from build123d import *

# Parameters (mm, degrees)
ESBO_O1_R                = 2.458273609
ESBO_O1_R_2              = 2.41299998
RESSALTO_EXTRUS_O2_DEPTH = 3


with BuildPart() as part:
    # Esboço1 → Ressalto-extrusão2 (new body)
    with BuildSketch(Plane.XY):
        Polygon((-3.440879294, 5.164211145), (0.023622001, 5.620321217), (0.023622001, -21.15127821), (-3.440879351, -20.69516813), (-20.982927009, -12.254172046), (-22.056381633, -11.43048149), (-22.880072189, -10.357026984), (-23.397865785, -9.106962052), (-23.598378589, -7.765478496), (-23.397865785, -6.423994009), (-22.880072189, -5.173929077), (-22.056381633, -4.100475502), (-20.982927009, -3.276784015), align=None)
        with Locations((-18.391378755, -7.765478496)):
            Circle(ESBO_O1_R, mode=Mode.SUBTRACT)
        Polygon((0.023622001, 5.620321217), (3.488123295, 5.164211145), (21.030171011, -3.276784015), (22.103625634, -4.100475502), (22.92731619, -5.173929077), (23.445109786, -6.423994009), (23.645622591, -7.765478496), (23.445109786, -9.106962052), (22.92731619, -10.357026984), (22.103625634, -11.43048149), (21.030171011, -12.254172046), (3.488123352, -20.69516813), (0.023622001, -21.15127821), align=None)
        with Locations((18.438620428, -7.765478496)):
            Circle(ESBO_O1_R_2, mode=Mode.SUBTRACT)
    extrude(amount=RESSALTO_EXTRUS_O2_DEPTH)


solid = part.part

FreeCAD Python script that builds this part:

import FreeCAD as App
import Part
import Sketcher

V = App.Vector
Q = App.Units.Quantity


def add_polygon(sketch, points):
    """Adds a closed chain of lines whose ends are joined by coincident constraints."""
    first, n = sketch.GeometryCount, len(points)
    for a, b in zip(points, points[1:] + points[:1]):
        sketch.addGeometry(Part.LineSegment(App.Vector(*a, 0), App.Vector(*b, 0)), False)
    for i in range(n):
        sketch.addConstraint(Sketcher.Constraint("Coincident", first + i, 2, first + (i + 1) % n, 1))

doc = App.newDocument("Part")
body = doc.addObject("PartDesign::Body", "Body")

sketch1 = body.newObject("Sketcher::SketchObject", "Sketch")
sketch1.AttachmentSupport = (doc.getObject("XY_Plane"), [""])
sketch1.MapMode = "FlatFace"
add_polygon(sketch1, [(0.023622, 5.620321), (-3.440879, 5.164211), (-20.982927, -3.276784), (-22.056382, -4.100476), (-22.880072, -5.173929), (-23.397866, -6.423994), (-23.598379, -7.765478), (-23.397866, -9.106962), (-22.880072, -10.357027), (-22.056382, -11.430481), (-20.982927, -12.254172), (-3.440879, -20.695168), (0.023622, -21.151278), (3.488123, -20.695168), (21.030171, -12.254172), (22.103626, -11.430481), (22.927316, -10.357027), (23.44511, -9.106962), (23.645623, -7.765478), (23.44511, -6.423994), (22.927316, -5.173929), (22.103626, -4.100476), (21.030171, -3.276784), (3.488123, 5.164211)])
sketch1.addGeometry(Part.Circle(V(18.43862, -7.765478, 0), V(0, 0, 1), 2.413), False)
sketch1.addGeometry(Part.Circle(V(-18.391379, -7.765478, 0), V(0, 0, 1), 2.458274), False)
sketch1.addConstraint(Sketcher.Constraint("Perpendicular", 2, 8))
sketch1.addConstraint(Sketcher.Constraint("Perpendicular", 3, 9))
sketch1.addConstraint(Sketcher.Constraint("Parallel", 0, 12))
sketch1.addConstraint(Sketcher.Constraint("Parallel", 1, 13))
sketch1.addConstraint(Sketcher.Constraint("Perpendicular", 8, 14))
sketch1.addConstraint(Sketcher.Constraint("Perpendicular", 9, 15))
sketch1.addConstraint(Sketcher.Constraint("Parallel", 4, 16))
sketch1.addConstraint(Sketcher.Constraint("Parallel", 5, 17))
sketch1.addConstraint(Sketcher.Constraint("Parallel", 6, 18))
sketch1.addConstraint(Sketcher.Constraint("Parallel", 7, 19))
sketch1.addConstraint(Sketcher.Constraint("Perpendicular", 14, 20))
sketch1.addConstraint(Sketcher.Constraint("Perpendicular", 15, 21))
sketch1.addConstraint(Sketcher.Constraint("Parallel", 10, 22))
sketch1.addConstraint(Sketcher.Constraint("Parallel", 11, 23))
sketch1.addConstraint(Sketcher.Constraint("Horizontal", 24, 3, 25, 3))
sketch1.addConstraint(Sketcher.Constraint("Horizontal", 25, 3, 5, 2))
sketch1.addConstraint(Sketcher.Constraint("Horizontal", 10, 2, 12, 2))
sketch1.addConstraint(Sketcher.Constraint("Horizontal", 9, 2, 13, 2))
sketch1.addConstraint(Sketcher.Constraint("Horizontal", 8, 2, 14, 2))
sketch1.addConstraint(Sketcher.Constraint("Horizontal", 7, 2, 15, 2))
sketch1.addConstraint(Sketcher.Constraint("Horizontal", 6, 2, 16, 2))
sketch1.addConstraint(Sketcher.Constraint("Horizontal", 5, 2, 17, 2))
sketch1.addConstraint(Sketcher.Constraint("Horizontal", 4, 2, 18, 2))
sketch1.addConstraint(Sketcher.Constraint("Horizontal", 3, 2, 19, 2))
sketch1.addConstraint(Sketcher.Constraint("Horizontal", 2, 2, 20, 2))
sketch1.addConstraint(Sketcher.Constraint("Horizontal", 1, 2, 21, 2))
sketch1.addConstraint(Sketcher.Constraint("Horizontal", 0, 2, 22, 2))
sketch1.addConstraint(Sketcher.Constraint("Vertical", 4, 2, 6, 2))
sketch1.addConstraint(Sketcher.Constraint("Vertical", 3, 2, 7, 2))
sketch1.addConstraint(Sketcher.Constraint("Vertical", 2, 2, 8, 2))
sketch1.addConstraint(Sketcher.Constraint("Vertical", 1, 2, 9, 2))
sketch1.addConstraint(Sketcher.Constraint("Vertical", 0, 2, 10, 2))
sketch1.addConstraint(Sketcher.Constraint("Vertical", 16, 2, 18, 2))
sketch1.addConstraint(Sketcher.Constraint("Vertical", 15, 2, 19, 2))
sketch1.addConstraint(Sketcher.Constraint("Vertical", 14, 2, 20, 2))
sketch1.addConstraint(Sketcher.Constraint("Vertical", 12, 2, 22, 2))
sketch1.addConstraint(Sketcher.Constraint("Vertical", 11, 2, 23, 2))
sketch1.addConstraint(Sketcher.Constraint("Equal", 2, 3))
sketch1.addConstraint(Sketcher.Constraint("Equal", 3, 4))
sketch1.addConstraint(Sketcher.Constraint("Diameter", 24, 4.826))
sketch1.addConstraint(Sketcher.Constraint("Angle", 0, Q("-172.500003 deg")))
sketch1.addConstraint(Sketcher.Constraint("Angle", 4, Q("-112.49999 deg")))
sketch1.addConstraint(Sketcher.Constraint("Angle", 8, Q("-52.500002 deg")))
sketch1.addConstraint(Sketcher.Constraint("DistanceX", 25, 3, 24, 3, 36.829999))
sketch1.addConstraint(Sketcher.Constraint("Diameter", 25, 4.916547))
sketch1.addConstraint(Sketcher.Constraint("DistanceX", 5, 2, 25, 3, 5.207))
sketch1.addConstraint(Sketcher.Constraint("DistanceX", 11, 2, 24, 3, 18.414998))
sketch1.addConstraint(Sketcher.Constraint("DistanceX", 25, 3, 0, 2, 14.950499))
sketch1.addConstraint(Sketcher.Constraint("DistanceY", 11, 2, 24, 3, 13.3858))
sketch1.addConstraint(Sketcher.Constraint("Distance", 1, 19.46725))
sketch1.addConstraint(Sketcher.Constraint("Distance", 2, 1.35306))
sketch1.addConstraint(Sketcher.Constraint("DistanceX", -1, 1, 24, 3, 18.43862))
sketch1.addConstraint(Sketcher.Constraint("DistanceY", 24, 3, -1, 1, 7.765478))
sketch1.addConstraint(Sketcher.Constraint("DistanceX", 2, 2, -1, 1, 22.056382))
pad1 = body.newObject("PartDesign::Pad", "Pad")
pad1.Profile = sketch1
pad1.Length = 3

doc.recompute()
